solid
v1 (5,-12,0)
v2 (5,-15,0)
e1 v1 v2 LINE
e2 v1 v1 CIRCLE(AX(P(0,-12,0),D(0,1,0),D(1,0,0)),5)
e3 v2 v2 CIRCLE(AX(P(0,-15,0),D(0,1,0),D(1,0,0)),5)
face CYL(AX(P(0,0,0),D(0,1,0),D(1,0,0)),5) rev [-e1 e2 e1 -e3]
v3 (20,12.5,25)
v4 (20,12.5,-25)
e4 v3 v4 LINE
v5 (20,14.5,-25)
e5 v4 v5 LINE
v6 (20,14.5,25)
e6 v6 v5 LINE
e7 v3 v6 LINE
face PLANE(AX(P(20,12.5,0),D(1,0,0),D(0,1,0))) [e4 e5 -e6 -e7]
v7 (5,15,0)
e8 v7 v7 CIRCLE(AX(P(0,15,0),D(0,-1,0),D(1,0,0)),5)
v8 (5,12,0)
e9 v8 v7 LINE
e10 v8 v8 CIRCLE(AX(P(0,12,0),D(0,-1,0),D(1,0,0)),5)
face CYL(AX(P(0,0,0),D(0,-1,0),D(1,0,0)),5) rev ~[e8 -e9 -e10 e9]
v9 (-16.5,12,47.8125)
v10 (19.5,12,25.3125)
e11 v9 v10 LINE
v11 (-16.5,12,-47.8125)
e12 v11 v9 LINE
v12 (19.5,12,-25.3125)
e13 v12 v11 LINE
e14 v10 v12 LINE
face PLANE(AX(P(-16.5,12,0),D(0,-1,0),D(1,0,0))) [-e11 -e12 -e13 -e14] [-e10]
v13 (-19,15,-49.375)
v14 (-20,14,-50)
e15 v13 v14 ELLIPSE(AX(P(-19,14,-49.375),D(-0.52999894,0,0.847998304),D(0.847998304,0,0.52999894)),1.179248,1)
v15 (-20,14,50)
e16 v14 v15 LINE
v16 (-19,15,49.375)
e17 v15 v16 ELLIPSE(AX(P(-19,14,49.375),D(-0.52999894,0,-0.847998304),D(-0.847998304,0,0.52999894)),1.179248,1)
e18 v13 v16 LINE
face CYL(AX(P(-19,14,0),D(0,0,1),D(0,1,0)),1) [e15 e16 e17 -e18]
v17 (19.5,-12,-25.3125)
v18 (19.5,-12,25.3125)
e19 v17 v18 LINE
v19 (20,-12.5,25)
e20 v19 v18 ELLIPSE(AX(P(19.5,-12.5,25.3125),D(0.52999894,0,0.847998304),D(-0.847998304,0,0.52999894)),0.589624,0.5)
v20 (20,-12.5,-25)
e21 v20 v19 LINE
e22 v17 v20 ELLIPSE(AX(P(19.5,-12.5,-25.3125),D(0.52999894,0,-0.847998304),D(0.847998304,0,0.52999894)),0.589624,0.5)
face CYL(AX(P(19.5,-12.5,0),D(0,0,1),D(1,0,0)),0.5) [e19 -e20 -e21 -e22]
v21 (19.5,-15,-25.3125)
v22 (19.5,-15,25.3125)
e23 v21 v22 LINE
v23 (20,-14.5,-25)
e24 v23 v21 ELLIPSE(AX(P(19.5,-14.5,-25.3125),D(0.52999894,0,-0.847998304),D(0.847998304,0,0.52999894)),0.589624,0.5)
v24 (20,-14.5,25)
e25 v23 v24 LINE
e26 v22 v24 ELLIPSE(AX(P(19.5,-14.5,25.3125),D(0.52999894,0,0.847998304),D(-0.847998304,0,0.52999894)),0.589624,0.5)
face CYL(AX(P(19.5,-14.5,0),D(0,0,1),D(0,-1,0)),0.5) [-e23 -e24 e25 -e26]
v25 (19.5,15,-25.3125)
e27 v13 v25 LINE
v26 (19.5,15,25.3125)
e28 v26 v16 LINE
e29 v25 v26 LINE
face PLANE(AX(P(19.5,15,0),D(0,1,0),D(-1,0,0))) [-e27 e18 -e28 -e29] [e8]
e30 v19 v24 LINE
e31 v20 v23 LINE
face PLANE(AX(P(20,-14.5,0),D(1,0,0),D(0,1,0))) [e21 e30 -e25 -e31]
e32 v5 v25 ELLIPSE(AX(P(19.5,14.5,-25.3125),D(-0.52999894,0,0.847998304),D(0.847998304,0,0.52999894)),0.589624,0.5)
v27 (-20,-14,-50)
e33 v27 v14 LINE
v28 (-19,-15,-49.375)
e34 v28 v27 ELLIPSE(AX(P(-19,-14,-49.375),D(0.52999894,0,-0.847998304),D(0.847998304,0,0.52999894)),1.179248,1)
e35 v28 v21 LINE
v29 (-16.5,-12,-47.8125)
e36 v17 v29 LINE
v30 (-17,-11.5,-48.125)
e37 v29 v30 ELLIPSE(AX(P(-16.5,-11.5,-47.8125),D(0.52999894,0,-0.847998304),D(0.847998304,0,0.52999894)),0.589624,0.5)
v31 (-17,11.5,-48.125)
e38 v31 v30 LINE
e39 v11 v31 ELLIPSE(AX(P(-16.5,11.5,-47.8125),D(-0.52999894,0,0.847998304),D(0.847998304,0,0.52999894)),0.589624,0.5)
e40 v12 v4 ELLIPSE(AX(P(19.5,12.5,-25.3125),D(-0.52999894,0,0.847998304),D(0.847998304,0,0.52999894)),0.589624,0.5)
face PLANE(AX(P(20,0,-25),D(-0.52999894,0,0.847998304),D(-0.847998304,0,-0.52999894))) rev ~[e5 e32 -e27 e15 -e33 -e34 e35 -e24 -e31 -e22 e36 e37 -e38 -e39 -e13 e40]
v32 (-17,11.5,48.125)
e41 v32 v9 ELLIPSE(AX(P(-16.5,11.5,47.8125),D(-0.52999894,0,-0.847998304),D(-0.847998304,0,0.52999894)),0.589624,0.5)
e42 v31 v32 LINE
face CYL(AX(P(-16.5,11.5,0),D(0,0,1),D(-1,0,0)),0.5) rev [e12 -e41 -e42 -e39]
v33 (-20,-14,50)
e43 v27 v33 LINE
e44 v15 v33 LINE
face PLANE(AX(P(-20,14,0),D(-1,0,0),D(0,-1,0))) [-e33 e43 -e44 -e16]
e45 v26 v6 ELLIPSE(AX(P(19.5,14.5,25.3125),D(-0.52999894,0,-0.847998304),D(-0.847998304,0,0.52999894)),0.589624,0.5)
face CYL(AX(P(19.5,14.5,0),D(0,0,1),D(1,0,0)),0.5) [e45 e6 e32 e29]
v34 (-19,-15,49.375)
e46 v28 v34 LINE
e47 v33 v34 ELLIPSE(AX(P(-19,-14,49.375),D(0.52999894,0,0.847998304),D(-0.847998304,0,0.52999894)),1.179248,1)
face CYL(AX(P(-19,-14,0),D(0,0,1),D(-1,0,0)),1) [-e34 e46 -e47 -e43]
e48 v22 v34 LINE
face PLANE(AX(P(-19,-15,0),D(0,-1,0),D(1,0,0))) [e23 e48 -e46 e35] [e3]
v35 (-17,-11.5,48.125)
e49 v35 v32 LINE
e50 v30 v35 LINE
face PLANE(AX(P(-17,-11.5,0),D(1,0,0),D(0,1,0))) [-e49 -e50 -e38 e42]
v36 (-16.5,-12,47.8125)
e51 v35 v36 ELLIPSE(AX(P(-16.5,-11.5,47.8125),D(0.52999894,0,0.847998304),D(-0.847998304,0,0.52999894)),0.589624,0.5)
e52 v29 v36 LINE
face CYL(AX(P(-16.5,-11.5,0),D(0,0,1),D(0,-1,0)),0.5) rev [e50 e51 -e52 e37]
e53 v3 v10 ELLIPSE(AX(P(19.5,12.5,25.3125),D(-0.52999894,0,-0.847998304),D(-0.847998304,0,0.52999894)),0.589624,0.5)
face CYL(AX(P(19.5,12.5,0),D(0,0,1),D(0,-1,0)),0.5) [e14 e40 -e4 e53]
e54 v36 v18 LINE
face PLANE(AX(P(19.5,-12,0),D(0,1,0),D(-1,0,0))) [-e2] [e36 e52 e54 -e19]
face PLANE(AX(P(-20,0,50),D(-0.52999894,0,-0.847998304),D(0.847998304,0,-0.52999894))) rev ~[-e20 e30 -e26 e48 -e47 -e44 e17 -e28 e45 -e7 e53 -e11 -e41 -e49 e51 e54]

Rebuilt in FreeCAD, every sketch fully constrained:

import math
import FreeCAD as App
import Part
import Sketcher

V = App.Vector

doc = App.newDocument("Part")
body = doc.addObject("PartDesign::Body", "Body")

# Sketch on XY plane
sketch1 = body.newObject("Sketcher::SketchObject", "Sketch")
sketch1.AttachmentSupport = (doc.getObject("XY_Plane"), [""])
sketch1.MapMode = "FlatFace"
sketch1.addGeometry([
    Part.ArcOfCircle(Part.Circle(V(19.5, 14.5, 0), V(0, 0, 1), 0.5), math.radians(0), math.radians(90)),  # 0
    Part.LineSegment(V(19.5, 15, 0), V(-19, 15, 0)),  # 1
    Part.ArcOfCircle(Part.Circle(V(-19, 14, 0), V(0, 0, 1), 1), math.radians(90), math.radians(180)),  # 2
    Part.LineSegment(V(-20, 14, 0), V(-20, -14, 0)),  # 3
    Part.ArcOfCircle(Part.Circle(V(-19, -14, 0), V(0, 0, 1), 1), math.radians(180), math.radians(270)),  # 4
    Part.LineSegment(V(-19, -15, 0), V(19.5, -15, 0)),  # 5
    Part.ArcOfCircle(Part.Circle(V(19.5, -14.5, 0), V(0, 0, 1), 0.5), math.radians(-90), math.radians(0)),  # 6
    Part.LineSegment(V(20, -14.5, 0), V(20, -12.5, 0)),  # 7
    Part.ArcOfCircle(Part.Circle(V(19.5, -12.5, 0), V(0, 0, 1), 0.5), math.radians(0), math.radians(90)),  # 8
    Part.LineSegment(V(19.5, -12, 0), V(-16.5, -12, 0)),  # 9
    Part.ArcOfCircle(Part.Circle(V(-16.5, -11.5, 0), V(0, 0, 1), 0.5), math.radians(180), math.radians(270)),  # 10
    Part.LineSegment(V(-17, -11.5, 0), V(-17, 11.5, 0)),  # 11
    Part.ArcOfCircle(Part.Circle(V(-16.5, 11.5, 0), V(0, 0, 1), 0.5), math.radians(90), math.radians(180)),  # 12
    Part.LineSegment(V(-16.5, 12, 0), V(19.5, 12, 0)),  # 13
    Part.ArcOfCircle(Part.Circle(V(19.5, 12.5, 0), V(0, 0, 1), 0.5), math.radians(-90), math.radians(0)),  # 14
    Part.LineSegment(V(20, 12.5, 0), V(20, 14.5, 0)),  # 15
], False)
sketch1.addConstraint([
    Sketcher.Constraint("Tangent", 0, 2, 1, 1),
    Sketcher.Constraint("Tangent", 1, 2, 2, 1),
    Sketcher.Constraint("Tangent", 2, 2, 3, 1),
    Sketcher.Constraint("Tangent", 3, 2, 4, 1),
    Sketcher.Constraint("Tangent", 4, 2, 5, 1),
    Sketcher.Constraint("Tangent", 5, 2, 6, 1),
    Sketcher.Constraint("Tangent", 6, 2, 7, 1),
    Sketcher.Constraint("Tangent", 7, 2, 8, 1),
    Sketcher.Constraint("Tangent", 8, 2, 9, 1),
    Sketcher.Constraint("Tangent", 9, 2, 10, 2),
    Sketcher.Constraint("Tangent", 10, 1, 11, 1),
    Sketcher.Constraint("Tangent", 11, 2, 12, 2),
    Sketcher.Constraint("Tangent", 12, 1, 13, 1),
    Sketcher.Constraint("Tangent", 13, 2, 14, 1),
    Sketcher.Constraint("Tangent", 14, 2, 15, 1),
    Sketcher.Constraint("Tangent", 15, 2, 0, 1),
    Sketcher.Constraint("Horizontal", 1),
    Sketcher.Constraint("Vertical", 3),
    Sketcher.Constraint("Horizontal", 5),
    Sketcher.Constraint("Vertical", 7),
    Sketcher.Constraint("Horizontal", 9),
    Sketcher.Constraint("Vertical", 11),
    Sketcher.Constraint("Horizontal", 13),
    Sketcher.Constraint("Vertical", 15),
    Sketcher.Constraint("Equal", 2, 4),
    Sketcher.Constraint("Equal", 0, 6),
    Sketcher.Constraint("Equal", 6, 8),
    Sketcher.Constraint("Equal", 8, 10),
    Sketcher.Constraint("Equal", 10, 12),
    Sketcher.Constraint("Equal", 12, 14),
    Sketcher.Constraint("Symmetric", 0, 3, 6, 3, -1),
    Sketcher.Constraint("Equal", 7, 15),
    Sketcher.Constraint("Radius", 2, 1.0),
    Sketcher.Constraint("Radius", 0, 0.5),
    Sketcher.Constraint("DistanceX", 9, 2, 9, 1, 36.0),
    Sketcher.Constraint("DistanceY", 3, 2, 3, 1, 28.0),
    Sketcher.Constraint("DistanceY", 7, 1, 7, 2, 2.0),
    Sketcher.Constraint("DistanceX", 1, 2, 1, 1, 38.5),
    Sketcher.Constraint("DistanceX", 2, 3, -1, 1, 19.0),
])
pad1 = body.newObject("PartDesign::Pad", "Pad")
pad1.Profile = sketch1
pad1.Type = "TwoLengths"
pad1.Length = 50
pad1.Length2 = 50

# Sketch on XZ plane
sketch2 = body.newObject("Sketcher::SketchObject", "Sketch001")
sketch2.AttachmentSupport = (doc.getObject("XZ_Plane"), [""])
sketch2.MapMode = "FlatFace"
sketch2.addGeometry([
    Part.LineSegment(V(20, 50, 0), V(-20, 50, 0)),  # 0
    Part.LineSegment(V(-20, 50, 0), V(20, 25, 0)),  # 1
    Part.LineSegment(V(20, 25, 0), V(20, 50, 0)),  # 2
    Part.LineSegment(V(20, -25, 0), V(-20, -50, 0)),  # 3
    Part.LineSegment(V(-20, -50, 0), V(20, -50, 0)),  # 4
    Part.LineSegment(V(20, -50, 0), V(20, -25, 0)),  # 5
    Part.Circle(V(0, 0, 0), V(0, 0, 1), 5),  # 6
], False)
sketch2.addConstraint([
    Sketcher.Constraint("Coincident", 0, 2, 1, 1),
    Sketcher.Constraint("Coincident", 1, 2, 2, 1),
    Sketcher.Constraint("Coincident", 2, 2, 0, 1),
    Sketcher.Constraint("Coincident", 3, 2, 4, 1),
    Sketcher.Constraint("Coincident", 4, 2, 5, 1),
    Sketcher.Constraint("Coincident", 5, 2, 3, 1),
    Sketcher.Constraint("Horizontal", 0),
    Sketcher.Constraint("Vertical", 2),
    Sketcher.Constraint("Horizontal", 4),
    Sketcher.Constraint("Vertical", 5),
    Sketcher.Constraint("Coincident", 6, 3, -1, 1),
    Sketcher.Constraint("Symmetric", 2, 2, 3, 2, -1, 1),
    Sketcher.Constraint("Symmetric", 1, 2, 5, 2, -1),
    Sketcher.Constraint("Vertical", 0, 2, 3, 2),
    Sketcher.Constraint("Diameter", 6, 10.0),
    Sketcher.Constraint("DistanceX", 0, 2, 0, 1, 40.0),
    Sketcher.Constraint("DistanceY", 2, 1, 2, 2, 25.0),
    Sketcher.Constraint("DistanceY", -1, 1, 0, 2, 50.0),
])
pocket1 = body.newObject("PartDesign::Pocket", "Pocket")
pocket1.Profile = sketch2
pocket1.Type = "ThroughAll"
pocket1.Midplane = True

doc.recompute()
